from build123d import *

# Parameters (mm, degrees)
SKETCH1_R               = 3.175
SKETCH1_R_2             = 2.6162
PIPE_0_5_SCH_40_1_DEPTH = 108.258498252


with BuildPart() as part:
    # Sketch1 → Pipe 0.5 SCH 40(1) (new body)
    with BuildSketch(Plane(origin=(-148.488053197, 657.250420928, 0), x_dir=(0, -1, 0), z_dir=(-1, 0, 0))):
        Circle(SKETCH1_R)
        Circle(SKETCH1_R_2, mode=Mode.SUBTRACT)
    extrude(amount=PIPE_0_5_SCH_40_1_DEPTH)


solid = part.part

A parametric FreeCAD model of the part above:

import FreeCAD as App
import Part
import Sketcher

V = App.Vector
Q = App.Units.Quantity

doc = App.newDocument("Part")
body = doc.addObject("PartDesign::Body", "Body")

sketch1 = doc.addObject("Sketcher::SketchObject", "Sketch")
body.addObject(sketch1)
sketch1.AttachmentSupport = (doc.YZ_Plane, [""])
sketch1.MapMode = "FlatFace"
sketch1.AttachmentOffset = App.Placement(V(0, 0, -148.488053), App.Rotation())
sketch1.addGeometry([
    Part.Circle(V(657.3, 0, 0), V(0, 0, 1), 3.2),
    Part.Circle(V(657.3, 0, 0), V(0, 0, 1), 2.6),
], False)
sketch1.addConstraint([
    Sketcher.Constraint("Coincident", 1, 3, 0, 3),
    Sketcher.Constraint("PointOnObject", 0, 3, -1),
    Sketcher.Constraint("Diameter", 0, Q("0.25 in")),
    Sketcher.Constraint("Diameter", 1, Q("0.206 in")),
    Sketcher.Constraint("DistanceX", -1, 1, 0, 3, 657.250421),
])
pad1 = doc.addObject("PartDesign::Pad", "Pad")
body.addObject(pad1)
pad1.Profile = sketch1
pad1.Length = 108.258498
pad1.Reversed = True

doc.recompute()
